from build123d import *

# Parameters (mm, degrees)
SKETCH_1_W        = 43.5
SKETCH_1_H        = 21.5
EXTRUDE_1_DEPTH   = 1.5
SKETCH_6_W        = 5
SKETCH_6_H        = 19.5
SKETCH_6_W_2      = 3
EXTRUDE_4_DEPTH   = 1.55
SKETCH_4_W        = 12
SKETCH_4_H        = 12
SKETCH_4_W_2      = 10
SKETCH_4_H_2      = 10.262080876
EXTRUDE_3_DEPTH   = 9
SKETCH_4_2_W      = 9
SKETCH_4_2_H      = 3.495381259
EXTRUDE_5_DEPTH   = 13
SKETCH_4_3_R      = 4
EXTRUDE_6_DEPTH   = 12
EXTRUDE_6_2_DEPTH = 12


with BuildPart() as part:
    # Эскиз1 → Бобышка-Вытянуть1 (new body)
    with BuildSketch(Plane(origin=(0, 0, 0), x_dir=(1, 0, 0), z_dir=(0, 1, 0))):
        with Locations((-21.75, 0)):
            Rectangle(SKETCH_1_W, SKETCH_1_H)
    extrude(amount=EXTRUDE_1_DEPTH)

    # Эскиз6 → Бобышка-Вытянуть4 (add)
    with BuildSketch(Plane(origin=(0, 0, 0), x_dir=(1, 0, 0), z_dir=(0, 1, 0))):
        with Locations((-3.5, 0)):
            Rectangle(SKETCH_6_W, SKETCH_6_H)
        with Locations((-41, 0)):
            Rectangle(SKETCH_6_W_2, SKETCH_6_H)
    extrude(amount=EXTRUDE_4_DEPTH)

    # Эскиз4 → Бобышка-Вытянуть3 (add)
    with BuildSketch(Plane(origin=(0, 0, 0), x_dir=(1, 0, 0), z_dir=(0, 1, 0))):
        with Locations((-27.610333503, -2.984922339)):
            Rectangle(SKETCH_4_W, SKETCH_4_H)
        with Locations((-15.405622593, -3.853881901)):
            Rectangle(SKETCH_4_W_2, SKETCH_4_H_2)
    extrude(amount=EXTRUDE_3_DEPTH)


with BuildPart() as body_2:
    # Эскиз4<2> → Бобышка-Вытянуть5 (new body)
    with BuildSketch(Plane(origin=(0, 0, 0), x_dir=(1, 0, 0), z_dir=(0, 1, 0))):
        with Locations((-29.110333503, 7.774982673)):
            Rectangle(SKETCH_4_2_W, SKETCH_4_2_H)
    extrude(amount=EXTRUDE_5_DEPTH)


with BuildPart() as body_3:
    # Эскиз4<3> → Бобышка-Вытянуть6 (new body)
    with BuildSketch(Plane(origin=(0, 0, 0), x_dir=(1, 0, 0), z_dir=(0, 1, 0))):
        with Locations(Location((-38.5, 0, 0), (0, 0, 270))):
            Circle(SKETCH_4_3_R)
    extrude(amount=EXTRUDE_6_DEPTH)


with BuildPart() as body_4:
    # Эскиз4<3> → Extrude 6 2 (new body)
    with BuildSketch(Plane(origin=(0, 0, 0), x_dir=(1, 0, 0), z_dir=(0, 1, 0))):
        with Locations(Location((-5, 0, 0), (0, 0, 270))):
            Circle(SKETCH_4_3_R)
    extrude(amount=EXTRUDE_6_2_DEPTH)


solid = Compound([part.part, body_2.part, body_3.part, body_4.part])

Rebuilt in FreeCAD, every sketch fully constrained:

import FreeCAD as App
import Part
import Sketcher

doc = App.newDocument("Part")
body = doc.addObject("PartDesign::Body", "Body")

sketch1 = doc.addObject("Sketcher::SketchObject", "Sketch")
body.addObject(sketch1)
sketch1.AttachmentSupport = (doc.XZ_Plane, [""])
sketch1.MapMode = "FlatFace"
sketch1.addGeometry(Part.LineSegment(App.Vector(-44, -11, 0), App.Vector(-44, 11, 0)), False)
sketch1.addGeometry(Part.LineSegment(App.Vector(-44, 11, 0), App.Vector(0, 11, 0)), False)
sketch1.addGeometry(Part.LineSegment(App.Vector(0, 11, 0), App.Vector(0, -11, 0)), False)
sketch1.addGeometry(Part.LineSegment(App.Vector(0, -11, 0), App.Vector(-44, -11, 0)), False)
sketch1.addConstraint(Sketcher.Constraint("Coincident", 0, 2, 1, 1))
sketch1.addConstraint(Sketcher.Constraint("Coincident", 1, 2, 2, 1))
sketch1.addConstraint(Sketcher.Constraint("Coincident", 2, 2, 3, 1))
sketch1.addConstraint(Sketcher.Constraint("Coincident", 3, 2, 0, 1))
sketch1.addConstraint(Sketcher.Constraint("Vertical", 0))
sketch1.addConstraint(Sketcher.Constraint("Horizontal", 1))
sketch1.addConstraint(Sketcher.Constraint("Vertical", 2))
sketch1.addConstraint(Sketcher.Constraint("Horizontal", 3))
sketch1.addConstraint(Sketcher.Constraint("Symmetric", 1, 2, 2, 2, -1, 1))
sketch1.addConstraint(Sketcher.Constraint("DistanceX", 1, 1, 1, 2, 43.5))
sketch1.addConstraint(Sketcher.Constraint("DistanceY", 0, 1, 0, 2, 21.5))
pad1 = doc.addObject("PartDesign::Pad", "Pad")
body.addObject(pad1)
pad1.Profile = sketch1
pad1.Length = 1.5
pad1.Reversed = True

sketch2 = doc.addObject("Sketcher::SketchObject", "Sketch001")
body.addObject(sketch2)
sketch2.AttachmentSupport = (doc.XZ_Plane, [""])
sketch2.MapMode = "FlatFace"
sketch2.addGeometry(Part.LineSegment(App.Vector(-6, -9.8, 0), App.Vector(-6, 9.8, 0)), False)
sketch2.addGeometry(Part.LineSegment(App.Vector(-6, 9.8, 0), App.Vector(-1, 9.8, 0)), False)
sketch2.addGeometry(Part.LineSegment(App.Vector(-1, 9.8, 0), App.Vector(-1, -9.8, 0)), False)
sketch2.addGeometry(Part.LineSegment(App.Vector(-1, -9.8, 0), App.Vector(-6, -9.8, 0)), False)
sketch2.addGeometry(Part.LineSegment(App.Vector(-42.5, -9.8, 0), App.Vector(-42.5, 9.8, 0)), False)
sketch2.addGeometry(Part.LineSegment(App.Vector(-42.5, 9.8, 0), App.Vector(-39.5, 9.8, 0)), False)
sketch2.addGeometry(Part.LineSegment(App.Vector(-39.5, 9.8, 0), App.Vector(-39.5, -9.8, 0)), False)
sketch2.addGeometry(Part.LineSegment(App.Vector(-39.5, -9.8, 0), App.Vector(-42.5, -9.8, 0)), False)
sketch2.addConstraint(Sketcher.Constraint("Coincident", 0, 2, 1, 1))
sketch2.addConstraint(Sketcher.Constraint("Coincident", 1, 2, 2, 1))
sketch2.addConstraint(Sketcher.Constraint("Coincident", 2, 2, 3, 1))
sketch2.addConstraint(Sketcher.Constraint("Coincident", 3, 2, 0, 1))
sketch2.addConstraint(Sketcher.Constraint("Coincident", 4, 2, 5, 1))
sketch2.addConstraint(Sketcher.Constraint("Coincident", 5, 2, 6, 1))
sketch2.addConstraint(Sketcher.Constraint("Coincident", 6, 2, 7, 1))
sketch2.addConstraint(Sketcher.Constraint("Coincident", 7, 2, 4, 1))
sketch2.addConstraint(Sketcher.Constraint("Vertical", 0))
sketch2.addConstraint(Sketcher.Constraint("Horizontal", 1))
sketch2.addConstraint(Sketcher.Constraint("Vertical", 2))
sketch2.addConstraint(Sketcher.Constraint("Horizontal", 3))
sketch2.addConstraint(Sketcher.Constraint("Vertical", 4))
sketch2.addConstraint(Sketcher.Constraint("Horizontal", 5))
sketch2.addConstraint(Sketcher.Constraint("Vertical", 6))
sketch2.addConstraint(Sketcher.Constraint("Horizontal", 7))
sketch2.addConstraint(Sketcher.Constraint("Horizontal", 1, 2, 4, 2))
sketch2.addConstraint(Sketcher.Constraint("Horizontal", 3, 2, 6, 2))
sketch2.addConstraint(Sketcher.Constraint("DistanceX", 1, 1, 1, 2, 5.0))
sketch2.addConstraint(Sketcher.Constraint("DistanceX", 5, 1, 5, 2, 3.0))
sketch2.addConstraint(Sketcher.Constraint("DistanceY", 0, 1, 0, 2, 19.5))
sketch2.addConstraint(Sketcher.Constraint("DistanceX", 0, 2, -1, 1, 6.0))
sketch2.addConstraint(Sketcher.Constraint("DistanceX", 4, 2, -1, 1, 42.5))
sketch2.addConstraint(Sketcher.Constraint("DistanceY", -1, 1, 0, 2, 9.75))
pad2 = doc.addObject("PartDesign::Pad", "Pad001")
body.addObject(pad2)
pad2.Profile = sketch2
pad2.Length = 1.55
pad2.Reversed = True

sketch3 = doc.addObject("Sketcher::SketchObject", "Sketch002")
body.addObject(sketch3)
sketch3.AttachmentSupport = (doc.XZ_Plane, [""])
sketch3.MapMode = "FlatFace"
sketch3.addGeometry(Part.LineSegment(App.Vector(-34, -3, 0), App.Vector(-34, 9, 0)), False)
sketch3.addGeometry(Part.LineSegment(App.Vector(-34, 9, 0), App.Vector(-22, 9, 0)), False)
sketch3.addGeometry(Part.LineSegment(App.Vector(-22, 9, 0), App.Vector(-22, -3, 0)), False)
sketch3.addGeometry(Part.LineSegment(App.Vector(-22, -3, 0), App.Vector(-34, -3, 0)), False)
sketch3.addGeometry(Part.LineSegment(App.Vector(-20, -1, 0), App.Vector(-20, 9, 0)), False)
sketch3.addGeometry(Part.LineSegment(App.Vector(-20, 9, 0), App.Vector(-10, 9, 0)), False)
sketch3.addGeometry(Part.LineSegment(App.Vector(-10, 9, 0), App.Vector(-10, -1, 0)), False)
sketch3.addGeometry(Part.LineSegment(App.Vector(-10, -1, 0), App.Vector(-20, -1, 0)), False)
sketch3.addConstraint(Sketcher.Constraint("Coincident", 0, 2, 1, 1))
sketch3.addConstraint(Sketcher.Constraint("Coincident", 1, 2, 2, 1))
sketch3.addConstraint(Sketcher.Constraint("Coincident", 2, 2, 3, 1))
sketch3.addConstraint(Sketcher.Constraint("Coincident", 3, 2, 0, 1))
sketch3.addConstraint(Sketcher.Constraint("Coincident", 4, 2, 5, 1))
sketch3.addConstraint(Sketcher.Constraint("Coincident", 5, 2, 6, 1))
sketch3.addConstraint(Sketcher.Constraint("Coincident", 6, 2, 7, 1))
sketch3.addConstraint(Sketcher.Constraint("Coincident", 7, 2, 4, 1))
sketch3.addConstraint(Sketcher.Constraint("Vertical", 0))
sketch3.addConstraint(Sketcher.Constraint("Horizontal", 1))
sketch3.addConstraint(Sketcher.Constraint("Vertical", 2))
sketch3.addConstraint(Sketcher.Constraint("Horizontal", 3))
sketch3.addConstraint(Sketcher.Constraint("Vertical", 4))
sketch3.addConstraint(Sketcher.Constraint("Horizontal", 5))
sketch3.addConstraint(Sketcher.Constraint("Vertical", 6))
sketch3.addConstraint(Sketcher.Constraint("Horizontal", 7))
sketch3.addConstraint(Sketcher.Constraint("Horizontal", 1, 2, 4, 2))
sketch3.addConstraint(Sketcher.Constraint("Equal", 3, 0))
sketch3.addConstraint(Sketcher.Constraint("DistanceX", 1, 1, 1, 2, 12.0))
sketch3.addConstraint(Sketcher.Constraint("DistanceX", 5, 1, 5, 2, 10.0))
sketch3.addConstraint(Sketcher.Constraint("DistanceY", 4, 1, 4, 2, 10.262081))
sketch3.addConstraint(Sketcher.Constraint("DistanceY", 6, 2, -1, 1, 1.277159))
sketch3.addConstraint(Sketcher.Constraint("DistanceX", 1, 2, 4, 2, 1.204711))
sketch3.addConstraint(Sketcher.Constraint("DistanceX", 0, 2, -1, 1, 33.610334))
pad3 = doc.addObject("PartDesign::Pad", "Pad002")
body.addObject(pad3)
pad3.Profile = sketch3
pad3.Length = 9
pad3.Reversed = True
body2 = doc.addObject("PartDesign::Body", "Body001")

sketch4 = doc.addObject("Sketcher::SketchObject", "Sketch003")
body2.addObject(sketch4)
sketch4.AttachmentSupport = (doc.getObject("XZ_Plane001"), [""])
sketch4.MapMode = "FlatFace"
sketch4.addGeometry(Part.LineSegment(App.Vector(-33.6, -9.5, 0), App.Vector(-33.6, -6, 0)), False)
sketch4.addGeometry(Part.LineSegment(App.Vector(-33.6, -6, 0), App.Vector(-24.6, -6, 0)), False)
sketch4.addGeometry(Part.LineSegment(App.Vector(-24.6, -6, 0), App.Vector(-24.6, -9.5, 0)), False)
sketch4.addGeometry(Part.LineSegment(App.Vector(-24.6, -9.5, 0), App.Vector(-33.6, -9.5, 0)), False)
sketch4.addConstraint(Sketcher.Constraint("Coincident", 0, 2, 1, 1))
sketch4.addConstraint(Sketcher.Constraint("Coincident", 1, 2, 2, 1))
sketch4.addConstraint(Sketcher.Constraint("Coincident", 2, 2, 3, 1))
sketch4.addConstraint(Sketcher.Constraint("Coincident", 3, 2, 0, 1))
sketch4.addConstraint(Sketcher.Constraint("Vertical", 0))
sketch4.addConstraint(Sketcher.Constraint("Horizontal", 1))
sketch4.addConstraint(Sketcher.Constraint("Vertical", 2))
sketch4.addConstraint(Sketcher.Constraint("Horizontal", 3))
sketch4.addConstraint(Sketcher.Constraint("DistanceX", 1, 1, 1, 2, 9.0))
sketch4.addConstraint(Sketcher.Constraint("DistanceY", 0, 1, 0, 2, 3.495381))
sketch4.addConstraint(Sketcher.Constraint("DistanceX", 0, 2, -1, 1, 33.610334))
sketch4.addConstraint(Sketcher.Constraint("DistanceY", 0, 2, -1, 1, 6.027292))
pad4 = doc.addObject("PartDesign::Pad", "Pad003")
body2.addObject(pad4)
pad4.Profile = sketch4
pad4.Length = 13
pad4.Reversed = True
body3 = doc.addObject("PartDesign::Body", "Body002")

sketch5 = doc.addObject("Sketcher::SketchObject", "Sketch004")
body3.addObject(sketch5)
sketch5.AttachmentSupport = (doc.getObject("XZ_Plane002"), [""])
sketch5.MapMode = "FlatFace"
sketch5.addGeometry(Part.Circle(App.Vector(-38.5, 0, 0), App.Vector(0, 0, 1), 4), False)
sketch5.addConstraint(Sketcher.Constraint("PointOnObject", 0, 3, -1))
sketch5.addConstraint(Sketcher.Constraint("Diameter", 0, 8.0))
sketch5.addConstraint(Sketcher.Constraint("DistanceX", 0, 3, -1, 1, 38.5))
pad5 = doc.addObject("PartDesign::Pad", "Pad004")
body3.addObject(pad5)
pad5.Profile = sketch5
pad5.Length = 12
pad5.Reversed = True
body4 = doc.addObject("PartDesign::Body", "Body003")

sketch6 = doc.addObject("Sketcher::SketchObject", "Sketch005")
body4.addObject(sketch6)
sketch6.AttachmentSupport = (doc.getObject("XZ_Plane003"), [""])
sketch6.MapMode = "FlatFace"
sketch6.addGeometry(Part.Circle(App.Vector(-5, 0, 0), App.Vector(0, 0, 1), 4), False)
sketch6.addConstraint(Sketcher.Constraint("PointOnObject", 0, 3, -1))
sketch6.addConstraint(Sketcher.Constraint("Diameter", 0, 8.0))
sketch6.addConstraint(Sketcher.Constraint("DistanceX", 0, 3, -1, 1, 5.0))
pad6 = doc.addObject("PartDesign::Pad", "Pad005")
body4.addObject(pad6)
pad6.Profile = sketch6
pad6.Length = 12
pad6.Reversed = True

doc.recompute()
